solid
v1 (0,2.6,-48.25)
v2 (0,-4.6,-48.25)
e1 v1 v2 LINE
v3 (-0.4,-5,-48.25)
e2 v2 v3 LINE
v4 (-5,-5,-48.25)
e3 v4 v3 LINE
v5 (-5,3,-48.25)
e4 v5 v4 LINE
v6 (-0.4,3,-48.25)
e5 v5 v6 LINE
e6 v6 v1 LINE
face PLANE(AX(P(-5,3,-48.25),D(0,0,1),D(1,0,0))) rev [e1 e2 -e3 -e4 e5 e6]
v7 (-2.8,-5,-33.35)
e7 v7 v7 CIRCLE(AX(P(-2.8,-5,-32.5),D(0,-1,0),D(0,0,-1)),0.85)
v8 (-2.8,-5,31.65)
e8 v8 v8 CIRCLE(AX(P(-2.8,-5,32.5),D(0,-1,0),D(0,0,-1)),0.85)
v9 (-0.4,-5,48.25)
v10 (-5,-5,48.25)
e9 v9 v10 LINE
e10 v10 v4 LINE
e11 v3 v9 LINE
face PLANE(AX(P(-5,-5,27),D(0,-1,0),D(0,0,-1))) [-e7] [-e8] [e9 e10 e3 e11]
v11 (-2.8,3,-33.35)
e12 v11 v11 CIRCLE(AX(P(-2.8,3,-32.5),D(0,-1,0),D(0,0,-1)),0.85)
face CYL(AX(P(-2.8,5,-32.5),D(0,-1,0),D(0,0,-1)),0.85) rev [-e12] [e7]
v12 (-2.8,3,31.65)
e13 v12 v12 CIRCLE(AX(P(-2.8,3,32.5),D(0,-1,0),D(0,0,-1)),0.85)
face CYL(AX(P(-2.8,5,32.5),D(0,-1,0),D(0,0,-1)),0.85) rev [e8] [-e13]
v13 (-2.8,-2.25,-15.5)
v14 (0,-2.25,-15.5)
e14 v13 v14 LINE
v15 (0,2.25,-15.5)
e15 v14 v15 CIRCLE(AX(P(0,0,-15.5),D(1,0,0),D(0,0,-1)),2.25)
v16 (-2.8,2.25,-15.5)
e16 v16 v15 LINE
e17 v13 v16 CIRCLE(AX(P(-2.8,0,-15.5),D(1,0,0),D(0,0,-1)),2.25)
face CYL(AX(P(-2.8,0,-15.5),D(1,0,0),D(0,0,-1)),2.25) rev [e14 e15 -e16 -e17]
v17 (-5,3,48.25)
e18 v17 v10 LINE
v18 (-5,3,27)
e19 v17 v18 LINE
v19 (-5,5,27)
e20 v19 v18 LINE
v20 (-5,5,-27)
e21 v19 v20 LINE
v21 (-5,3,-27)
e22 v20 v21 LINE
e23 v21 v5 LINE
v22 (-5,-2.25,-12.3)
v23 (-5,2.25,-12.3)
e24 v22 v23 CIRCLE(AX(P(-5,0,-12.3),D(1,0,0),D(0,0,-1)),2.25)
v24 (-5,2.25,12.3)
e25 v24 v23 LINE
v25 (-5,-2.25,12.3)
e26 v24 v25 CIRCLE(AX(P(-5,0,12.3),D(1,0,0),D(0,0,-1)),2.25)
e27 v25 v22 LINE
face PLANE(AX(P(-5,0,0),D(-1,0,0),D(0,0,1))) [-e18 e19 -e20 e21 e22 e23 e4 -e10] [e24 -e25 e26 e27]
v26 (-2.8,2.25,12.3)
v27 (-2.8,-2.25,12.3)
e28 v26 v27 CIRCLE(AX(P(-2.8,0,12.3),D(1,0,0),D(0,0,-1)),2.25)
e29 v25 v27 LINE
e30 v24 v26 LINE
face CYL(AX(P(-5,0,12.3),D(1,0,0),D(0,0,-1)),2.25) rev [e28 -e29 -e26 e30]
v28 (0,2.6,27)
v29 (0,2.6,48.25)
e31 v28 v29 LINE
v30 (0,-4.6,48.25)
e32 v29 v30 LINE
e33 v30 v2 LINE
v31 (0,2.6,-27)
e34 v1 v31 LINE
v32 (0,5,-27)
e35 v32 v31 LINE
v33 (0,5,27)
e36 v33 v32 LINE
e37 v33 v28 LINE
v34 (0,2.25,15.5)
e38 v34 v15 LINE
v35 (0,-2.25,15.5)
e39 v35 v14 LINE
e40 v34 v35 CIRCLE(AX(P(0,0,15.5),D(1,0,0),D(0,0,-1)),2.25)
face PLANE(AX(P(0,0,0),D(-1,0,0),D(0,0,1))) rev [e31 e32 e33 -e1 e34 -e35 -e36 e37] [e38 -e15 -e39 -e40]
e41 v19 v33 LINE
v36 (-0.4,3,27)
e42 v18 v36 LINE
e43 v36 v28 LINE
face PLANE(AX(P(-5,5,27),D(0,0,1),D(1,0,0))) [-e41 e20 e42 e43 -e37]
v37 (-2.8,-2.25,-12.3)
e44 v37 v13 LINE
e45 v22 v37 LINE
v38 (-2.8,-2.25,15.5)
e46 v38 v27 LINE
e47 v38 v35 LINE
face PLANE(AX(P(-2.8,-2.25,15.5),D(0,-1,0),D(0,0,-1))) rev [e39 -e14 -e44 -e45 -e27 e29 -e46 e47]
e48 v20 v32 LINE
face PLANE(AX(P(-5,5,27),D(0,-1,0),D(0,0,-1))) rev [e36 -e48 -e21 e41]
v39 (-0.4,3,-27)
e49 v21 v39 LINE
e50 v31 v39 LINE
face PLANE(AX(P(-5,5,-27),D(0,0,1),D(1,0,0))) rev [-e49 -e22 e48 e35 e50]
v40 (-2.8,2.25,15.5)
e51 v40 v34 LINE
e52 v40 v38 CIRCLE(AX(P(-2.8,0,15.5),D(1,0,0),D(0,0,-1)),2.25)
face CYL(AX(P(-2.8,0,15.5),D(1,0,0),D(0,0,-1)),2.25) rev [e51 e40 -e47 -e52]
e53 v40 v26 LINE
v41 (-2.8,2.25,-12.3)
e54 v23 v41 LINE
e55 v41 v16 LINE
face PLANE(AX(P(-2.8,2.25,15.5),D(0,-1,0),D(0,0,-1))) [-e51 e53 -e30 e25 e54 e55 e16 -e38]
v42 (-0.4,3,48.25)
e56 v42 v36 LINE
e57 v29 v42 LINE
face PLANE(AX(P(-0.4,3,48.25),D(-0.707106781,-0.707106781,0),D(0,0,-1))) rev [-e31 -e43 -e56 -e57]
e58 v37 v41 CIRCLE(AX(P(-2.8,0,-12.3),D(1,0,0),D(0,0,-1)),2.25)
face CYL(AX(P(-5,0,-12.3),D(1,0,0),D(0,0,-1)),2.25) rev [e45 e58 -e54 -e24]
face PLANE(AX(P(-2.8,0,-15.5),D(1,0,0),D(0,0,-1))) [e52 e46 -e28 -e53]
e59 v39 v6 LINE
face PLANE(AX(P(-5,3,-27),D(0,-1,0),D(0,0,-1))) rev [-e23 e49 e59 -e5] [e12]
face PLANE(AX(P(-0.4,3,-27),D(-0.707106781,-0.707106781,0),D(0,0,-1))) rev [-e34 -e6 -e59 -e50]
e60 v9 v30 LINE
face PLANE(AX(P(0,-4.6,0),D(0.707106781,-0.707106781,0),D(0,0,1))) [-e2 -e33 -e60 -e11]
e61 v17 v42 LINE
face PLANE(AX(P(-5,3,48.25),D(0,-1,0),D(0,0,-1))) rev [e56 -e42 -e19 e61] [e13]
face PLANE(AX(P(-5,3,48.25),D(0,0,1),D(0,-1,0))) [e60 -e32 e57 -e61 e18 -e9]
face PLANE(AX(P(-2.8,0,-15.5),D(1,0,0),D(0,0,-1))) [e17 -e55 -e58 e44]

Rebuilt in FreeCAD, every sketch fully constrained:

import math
import FreeCAD as App
import Part
import Sketcher

V = App.Vector
Q = App.Units.Quantity


def edges_at(feature, points):
    """Names of the edges that pass closest to the given points."""
    edges = feature.Shape.Edges
    near = lambda p: min(range(len(edges)), key=lambda i: edges[i].distToShape(Part.Vertex(*p))[0])
    return sorted({f"Edge{near(p) + 1}" for p in points})


def add_polygon(sketch, points):
    """Adds a closed chain of lines whose ends are joined by coincident constraints."""
    first, n = sketch.GeometryCount, len(points)
    for a, b in zip(points, points[1:] + points[:1]):
        sketch.addGeometry(Part.LineSegment(App.Vector(*a, 0), App.Vector(*b, 0)), False)
    for i in range(n):
        sketch.addConstraint(Sketcher.Constraint("Coincident", first + i, 2, first + (i + 1) % n, 1))

doc = App.newDocument("Part")
body = doc.addObject("PartDesign::Body", "Body")

sketch1 = body.newObject("Sketcher::SketchObject", "Sketch")
sketch1.AttachmentSupport = (doc.getObject("YZ_Plane"), [""])
sketch1.MapMode = "FlatFace"
add_polygon(sketch1, [(5, -27), (5, 27), (3, 27), (3, 48.2), (-3, 48.2), (-3, 27), (-5, 27), (-5, -27), (-3, -27), (-3, -48.2), (3, -48.2), (3, -27)])
sketch1.addConstraint([
    Sketcher.Constraint("Vertical", 0),
    Sketcher.Constraint("Horizontal", 1),
    Sketcher.Constraint("Vertical", 2),
    Sketcher.Constraint("Horizontal", 3),
    Sketcher.Constraint("Vertical", 4),
    Sketcher.Constraint("Horizontal", 5),
    Sketcher.Constraint("Vertical", 6),
    Sketcher.Constraint("Horizontal", 7),
    Sketcher.Constraint("Vertical", 8),
    Sketcher.Constraint("Horizontal", 9),
    Sketcher.Constraint("Vertical", 10),
    Sketcher.Constraint("Horizontal", 11),
    Sketcher.Constraint("Symmetric", 0, 2, 6, 2, -1, 1),
    Sketcher.Constraint("Symmetric", 2, 2, 8, 2, -1, 1),
    Sketcher.Constraint("Symmetric", 4, 2, 10, 2, -1, 1),
    Sketcher.Constraint("Symmetric", 1, 2, 4, 2, -2),
    Sketcher.Constraint("DistanceX", 1, 2, 1, 1, Q("2 mm")),
    Sketcher.Constraint("DistanceX", 3, 2, 3, 1, Q("6 mm")),
    Sketcher.Constraint("DistanceY", 0, 1, 0, 2, Q("54 mm")),
    Sketcher.Constraint("DistanceY", 2, 1, 2, 2, Q("21.25 mm")),
])
pad1 = body.newObject("PartDesign::Pad", "Pad")
pad1.Profile = sketch1
pad1.Length = 5
pad1.Reversed = True

sketch2 = body.newObject("Sketcher::SketchObject", "Sketch001")
sketch2.AttachmentSupport = (doc.getObject("YZ_Plane"), [""])
sketch2.MapMode = "FlatFace"
sketch2.addGeometry([
    Part.LineSegment(V(2.2, -15.5, 0), V(2.2, 15.5, 0)),
    Part.ArcOfCircle(Part.Circle(V(0, 15.5, 0), V(0, 0, 1), 2.2), math.radians(0), math.radians(180)),
    Part.LineSegment(V(-2.2, 15.5, 0), V(-2.2, -15.5, 0)),
    Part.ArcOfCircle(Part.Circle(V(0, -15.5, 0), V(0, 0, 1), 2.2), math.radians(180), math.radians(360)),
], False)
sketch2.addConstraint([
    Sketcher.Constraint("Tangent", 0, 2, 1, 1),
    Sketcher.Constraint("Tangent", 1, 2, 2, 1),
    Sketcher.Constraint("Tangent", 2, 2, 3, 1),
    Sketcher.Constraint("Tangent", 3, 2, 0, 1),
    Sketcher.Constraint("Vertical", 0),
    Sketcher.Constraint("Vertical", 2),
    Sketcher.Constraint("Symmetric", 1, 3, 3, 3, -1, 1),
    Sketcher.Constraint("DistanceY", 0, 1, 0, 2, Q("31 mm")),
    Sketcher.Constraint("Radius", 1, Q("2.25 mm")),
])
pocket1 = body.newObject("PartDesign::Pocket", "Pocket")
pocket1.Profile = sketch2
pocket1.Length = 2.8

sketch3 = body.newObject("Sketcher::SketchObject", "Sketch002")
sketch3.AttachmentSupport = (doc.getObject("YZ_Plane"), [""])
sketch3.MapMode = "FlatFace"
sketch3.addGeometry([
    Part.LineSegment(V(2.2, -12.3, 0), V(2.2, 12.3, 0)),
    Part.ArcOfCircle(Part.Circle(V(0, 12.3, 0), V(0, 0, 1), 2.2), math.radians(0), math.radians(180)),
    Part.LineSegment(V(-2.2, 12.3, 0), V(-2.2, -12.3, 0)),
    Part.ArcOfCircle(Part.Circle(V(0, -12.3, 0), V(0, 0, 1), 2.2), math.radians(180), math.radians(360)),
], False)
sketch3.addConstraint([
    Sketcher.Constraint("Tangent", 0, 2, 1, 1),
    Sketcher.Constraint("Tangent", 1, 2, 2, 1),
    Sketcher.Constraint("Tangent", 2, 2, 3, 1),
    Sketcher.Constraint("Tangent", 3, 2, 0, 1),
    Sketcher.Constraint("Vertical", 0),
    Sketcher.Constraint("Vertical", 2),
    Sketcher.Constraint("Symmetric", 1, 3, 3, 3, -1, 1),
    Sketcher.Constraint("Radius", 1, Q("2.25 mm")),
    Sketcher.Constraint("DistanceY", 0, 1, 0, 2, Q("24.6 mm")),
])
pocket2 = body.newObject("PartDesign::Pocket", "Pocket001")
pocket2.Profile = sketch3
pocket2.Type = "ThroughAll"

sketch4 = body.newObject("Sketcher::SketchObject", "Sketch003")
sketch4.AttachmentSupport = (doc.getObject("XZ_Plane"), [""])
sketch4.MapMode = "FlatFace"
sketch4.AttachmentOffset = App.Placement(V(0, 0, 3), App.Rotation())
add_polygon(sketch4, [(-5, -27), (-5, -48), (0, -48), (0, -27)])
add_polygon(sketch4, [(-5, 48), (-5, 27), (0, 27), (0, 48)])
sketch4.addConstraint([
    Sketcher.Constraint("Vertical", 0),
    Sketcher.Constraint("Horizontal", 1),
    Sketcher.Constraint("Vertical", 2),
    Sketcher.Constraint("Horizontal", 3),
    Sketcher.Constraint("Vertical", 4),
    Sketcher.Constraint("Horizontal", 5),
    Sketcher.Constraint("Vertical", 6),
    Sketcher.Constraint("Horizontal", 7),
    Sketcher.Constraint("Symmetric", 2, 2, 5, 2, -1, 1),
    Sketcher.Constraint("Symmetric", 1, 2, 6, 2, -1),
    Sketcher.Constraint("Vertical", 3, 2, 4, 2),
    Sketcher.Constraint("DistanceX", 1, 1, 1, 2, Q("5 mm")),
    Sketcher.Constraint("DistanceY", 2, 2, -1, 1, Q("27 mm")),
    Sketcher.Constraint("DistanceY", 0, 2, 0, 1, Q("21.25 mm")),
])
pad2 = body.newObject("PartDesign::Pad", "Pad001")
pad2.Profile = sketch4
pad2.Length = 2

sketch5 = body.newObject("Sketcher::SketchObject", "Sketch004")
sketch5.AttachmentSupport = (doc.getObject("XZ_Plane"), [""])
sketch5.MapMode = "FlatFace"
sketch5.AttachmentOffset = App.Placement(V(0, 0, 5), App.Rotation())
sketch5.addGeometry([
    Part.Circle(V(-2.8, 32.5, 0), V(0, 0, 1), 0.8),
    Part.Circle(V(-2.8, -32.5, 0), V(0, 0, 1), 0.8),
], False)
sketch5.addConstraint([
    Sketcher.Constraint("Equal", 0, 1),
    Sketcher.Constraint("Symmetric", 0, 3, 1, 3, -1),
    Sketcher.Constraint("Diameter", 0, Q("1.7 mm")),
    Sketcher.Constraint("DistanceY", 1, 3, 0, 3, Q("65 mm")),
    Sketcher.Constraint("DistanceX", 0, 3, -1, 1, Q("2.8 mm")),
])
pocket3 = body.newObject("PartDesign::Pocket", "Pocket002")
pocket3.Profile = sketch5
pocket3.Type = "ThroughAll"
doc.recompute()

chamfer = body.newObject("PartDesign::Chamfer", "Chamfer")
chamfer.Base = (pocket3, edges_at(pocket3, [(0, 3, 37.625), (0, -5, 0), (0, 3, -37.625)]))
chamfer.Size = 0.4

doc.recompute()
